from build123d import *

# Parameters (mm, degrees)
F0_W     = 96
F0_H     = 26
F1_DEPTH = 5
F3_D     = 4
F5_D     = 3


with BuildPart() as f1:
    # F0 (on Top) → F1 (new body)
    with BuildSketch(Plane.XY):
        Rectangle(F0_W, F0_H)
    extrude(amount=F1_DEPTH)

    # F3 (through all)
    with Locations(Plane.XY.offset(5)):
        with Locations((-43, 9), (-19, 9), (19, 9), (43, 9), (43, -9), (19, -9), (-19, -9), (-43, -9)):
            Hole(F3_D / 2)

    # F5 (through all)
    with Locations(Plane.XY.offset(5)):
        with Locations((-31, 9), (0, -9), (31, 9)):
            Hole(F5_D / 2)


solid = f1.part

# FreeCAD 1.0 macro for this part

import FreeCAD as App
import Part
import Sketcher

V = App.Vector
Q = App.Units.Quantity


def add_polygon(sketch, points):
    """Adds a closed chain of lines whose ends are joined by coincident constraints."""
    first, n = sketch.GeometryCount, len(points)
    for a, b in zip(points, points[1:] + points[:1]):
        sketch.addGeometry(Part.LineSegment(App.Vector(*a, 0), App.Vector(*b, 0)), False)
    for i in range(n):
        sketch.addConstraint(Sketcher.Constraint("Coincident", first + i, 2, first + (i + 1) % n, 1))

doc = App.newDocument("Part")
body = doc.addObject("PartDesign::Body", "Body")

# Sketch on XY plane
sketch1 = body.newObject("Sketcher::SketchObject", "Sketch")
sketch1.AttachmentSupport = (doc.getObject("XY_Plane"), [""])
sketch1.MapMode = "FlatFace"
add_polygon(sketch1, [(-48, 13), (-48, -13), (48, -13), (48, 13)])  # lines 0-3
sketch1.addConstraint([
    Sketcher.Constraint("Vertical", 0),
    Sketcher.Constraint("Horizontal", 1),
    Sketcher.Constraint("Vertical", 2),
    Sketcher.Constraint("Horizontal", 3),
    Sketcher.Constraint("Symmetric", 0, 2, 2, 2, -1, 1),
    Sketcher.Constraint("DistanceX", 1, 1, 1, 2, Q("96 mm")),
    Sketcher.Constraint("DistanceY", 0, 2, 0, 1, Q("26 mm")),
])
pad1 = body.newObject("PartDesign::Pad", "Pad")
pad1.Profile = sketch1
pad1.Length = 5

# Sketch on XY plane
sketch2 = body.newObject("Sketcher::SketchObject", "Sketch001")
sketch2.AttachmentSupport = (doc.getObject("XY_Plane"), [""])
sketch2.MapMode = "FlatFace"
sketch2.AttachmentOffset = App.Placement(V(0, 0, 5), App.Rotation())
sketch2.addGeometry([
    Part.Circle(V(-43, 9, 0), V(0, 0, 1), 2),  # 0
    Part.Circle(V(-19, 9, 0), V(0, 0, 1), 2),  # 1
    Part.Circle(V(19, 9, 0), V(0, 0, 1), 2),  # 2
    Part.Circle(V(43, 9, 0), V(0, 0, 1), 2),  # 3
    Part.Circle(V(43, -9, 0), V(0, 0, 1), 2),  # 4
    Part.Circle(V(19, -9, 0), V(0, 0, 1), 2),  # 5
    Part.Circle(V(-19, -9, 0), V(0, 0, 1), 2),  # 6
    Part.Circle(V(-43, -9, 0), V(0, 0, 1), 2),  # 7
], False)
sketch2.addConstraint([
    Sketcher.Constraint("Equal", 0, 1),
    Sketcher.Constraint("Equal", 1, 2),
    Sketcher.Constraint("Equal", 2, 3),
    Sketcher.Constraint("Equal", 3, 4),
    Sketcher.Constraint("Equal", 4, 5),
    Sketcher.Constraint("Equal", 5, 6),
    Sketcher.Constraint("Equal", 6, 7),
    Sketcher.Constraint("Symmetric", 0, 3, 4, 3, -1, 1),
    Sketcher.Constraint("Symmetric", 1, 3, 5, 3, -1, 1),
    Sketcher.Constraint("Symmetric", 2, 3, 6, 3, -1, 1),
    Sketcher.Constraint("Symmetric", 3, 3, 7, 3, -1, 1),
    Sketcher.Constraint("Symmetric", 1, 3, 2, 3, -2),
    Sketcher.Constraint("Symmetric", 0, 3, 3, 3, -2),
    Sketcher.Constraint("Horizontal", 0, 3, 1, 3),
    Sketcher.Constraint("Diameter", 0, Q("4 mm")),
    Sketcher.Constraint("DistanceX", 0, 3, -1, 1, Q("43 mm")),
    Sketcher.Constraint("DistanceY", -1, 1, 0, 3, Q("9 mm")),
    Sketcher.Constraint("DistanceX", 1, 3, -1, 1, Q("19 mm")),
])
doc.recompute()
hole = body.newObject("PartDesign::Hole", "Hole")
hole.Profile = sketch2
hole.ThreadType = "None"
hole.Diameter = 4
hole.DepthType = "ThroughAll"

# Sketch on XY plane
sketch3 = body.newObject("Sketcher::SketchObject", "Sketch002")
sketch3.AttachmentSupport = (doc.getObject("XY_Plane"), [""])
sketch3.MapMode = "FlatFace"
sketch3.AttachmentOffset = App.Placement(V(0, 0, 5), App.Rotation())
sketch3.addGeometry([
    Part.Circle(V(-31, 9, 0), V(0, 0, 1), 1.5),
    Part.Circle(V(0, -9, 0), V(0, 0, 1), 1.5),
    Part.Circle(V(31, 9, 0), V(0, 0, 1), 1.5),
], False)
sketch3.addConstraint([
    Sketcher.Constraint("Equal", 0, 1),
    Sketcher.Constraint("Equal", 1, 2),
    Sketcher.Constraint("Symmetric", 0, 3, 2, 3, -2),
    Sketcher.Constraint("PointOnObject", 1, 3, -2),
    Sketcher.Constraint("Diameter", 0, Q("3 mm")),
    Sketcher.Constraint("DistanceX", 0, 3, -1, 1, Q("31 mm")),
    Sketcher.Constraint("DistanceY", -1, 1, 0, 3, Q("9 mm")),
    Sketcher.Constraint("DistanceY", 1, 3, -1, 1, Q("9 mm")),
])
doc.recompute()
hole2 = body.newObject("PartDesign::Hole", "Hole001")
hole2.Profile = sketch3
hole2.ThreadType = "None"
hole2.Diameter = 3
hole2.DepthType = "ThroughAll"

doc.recompute()
